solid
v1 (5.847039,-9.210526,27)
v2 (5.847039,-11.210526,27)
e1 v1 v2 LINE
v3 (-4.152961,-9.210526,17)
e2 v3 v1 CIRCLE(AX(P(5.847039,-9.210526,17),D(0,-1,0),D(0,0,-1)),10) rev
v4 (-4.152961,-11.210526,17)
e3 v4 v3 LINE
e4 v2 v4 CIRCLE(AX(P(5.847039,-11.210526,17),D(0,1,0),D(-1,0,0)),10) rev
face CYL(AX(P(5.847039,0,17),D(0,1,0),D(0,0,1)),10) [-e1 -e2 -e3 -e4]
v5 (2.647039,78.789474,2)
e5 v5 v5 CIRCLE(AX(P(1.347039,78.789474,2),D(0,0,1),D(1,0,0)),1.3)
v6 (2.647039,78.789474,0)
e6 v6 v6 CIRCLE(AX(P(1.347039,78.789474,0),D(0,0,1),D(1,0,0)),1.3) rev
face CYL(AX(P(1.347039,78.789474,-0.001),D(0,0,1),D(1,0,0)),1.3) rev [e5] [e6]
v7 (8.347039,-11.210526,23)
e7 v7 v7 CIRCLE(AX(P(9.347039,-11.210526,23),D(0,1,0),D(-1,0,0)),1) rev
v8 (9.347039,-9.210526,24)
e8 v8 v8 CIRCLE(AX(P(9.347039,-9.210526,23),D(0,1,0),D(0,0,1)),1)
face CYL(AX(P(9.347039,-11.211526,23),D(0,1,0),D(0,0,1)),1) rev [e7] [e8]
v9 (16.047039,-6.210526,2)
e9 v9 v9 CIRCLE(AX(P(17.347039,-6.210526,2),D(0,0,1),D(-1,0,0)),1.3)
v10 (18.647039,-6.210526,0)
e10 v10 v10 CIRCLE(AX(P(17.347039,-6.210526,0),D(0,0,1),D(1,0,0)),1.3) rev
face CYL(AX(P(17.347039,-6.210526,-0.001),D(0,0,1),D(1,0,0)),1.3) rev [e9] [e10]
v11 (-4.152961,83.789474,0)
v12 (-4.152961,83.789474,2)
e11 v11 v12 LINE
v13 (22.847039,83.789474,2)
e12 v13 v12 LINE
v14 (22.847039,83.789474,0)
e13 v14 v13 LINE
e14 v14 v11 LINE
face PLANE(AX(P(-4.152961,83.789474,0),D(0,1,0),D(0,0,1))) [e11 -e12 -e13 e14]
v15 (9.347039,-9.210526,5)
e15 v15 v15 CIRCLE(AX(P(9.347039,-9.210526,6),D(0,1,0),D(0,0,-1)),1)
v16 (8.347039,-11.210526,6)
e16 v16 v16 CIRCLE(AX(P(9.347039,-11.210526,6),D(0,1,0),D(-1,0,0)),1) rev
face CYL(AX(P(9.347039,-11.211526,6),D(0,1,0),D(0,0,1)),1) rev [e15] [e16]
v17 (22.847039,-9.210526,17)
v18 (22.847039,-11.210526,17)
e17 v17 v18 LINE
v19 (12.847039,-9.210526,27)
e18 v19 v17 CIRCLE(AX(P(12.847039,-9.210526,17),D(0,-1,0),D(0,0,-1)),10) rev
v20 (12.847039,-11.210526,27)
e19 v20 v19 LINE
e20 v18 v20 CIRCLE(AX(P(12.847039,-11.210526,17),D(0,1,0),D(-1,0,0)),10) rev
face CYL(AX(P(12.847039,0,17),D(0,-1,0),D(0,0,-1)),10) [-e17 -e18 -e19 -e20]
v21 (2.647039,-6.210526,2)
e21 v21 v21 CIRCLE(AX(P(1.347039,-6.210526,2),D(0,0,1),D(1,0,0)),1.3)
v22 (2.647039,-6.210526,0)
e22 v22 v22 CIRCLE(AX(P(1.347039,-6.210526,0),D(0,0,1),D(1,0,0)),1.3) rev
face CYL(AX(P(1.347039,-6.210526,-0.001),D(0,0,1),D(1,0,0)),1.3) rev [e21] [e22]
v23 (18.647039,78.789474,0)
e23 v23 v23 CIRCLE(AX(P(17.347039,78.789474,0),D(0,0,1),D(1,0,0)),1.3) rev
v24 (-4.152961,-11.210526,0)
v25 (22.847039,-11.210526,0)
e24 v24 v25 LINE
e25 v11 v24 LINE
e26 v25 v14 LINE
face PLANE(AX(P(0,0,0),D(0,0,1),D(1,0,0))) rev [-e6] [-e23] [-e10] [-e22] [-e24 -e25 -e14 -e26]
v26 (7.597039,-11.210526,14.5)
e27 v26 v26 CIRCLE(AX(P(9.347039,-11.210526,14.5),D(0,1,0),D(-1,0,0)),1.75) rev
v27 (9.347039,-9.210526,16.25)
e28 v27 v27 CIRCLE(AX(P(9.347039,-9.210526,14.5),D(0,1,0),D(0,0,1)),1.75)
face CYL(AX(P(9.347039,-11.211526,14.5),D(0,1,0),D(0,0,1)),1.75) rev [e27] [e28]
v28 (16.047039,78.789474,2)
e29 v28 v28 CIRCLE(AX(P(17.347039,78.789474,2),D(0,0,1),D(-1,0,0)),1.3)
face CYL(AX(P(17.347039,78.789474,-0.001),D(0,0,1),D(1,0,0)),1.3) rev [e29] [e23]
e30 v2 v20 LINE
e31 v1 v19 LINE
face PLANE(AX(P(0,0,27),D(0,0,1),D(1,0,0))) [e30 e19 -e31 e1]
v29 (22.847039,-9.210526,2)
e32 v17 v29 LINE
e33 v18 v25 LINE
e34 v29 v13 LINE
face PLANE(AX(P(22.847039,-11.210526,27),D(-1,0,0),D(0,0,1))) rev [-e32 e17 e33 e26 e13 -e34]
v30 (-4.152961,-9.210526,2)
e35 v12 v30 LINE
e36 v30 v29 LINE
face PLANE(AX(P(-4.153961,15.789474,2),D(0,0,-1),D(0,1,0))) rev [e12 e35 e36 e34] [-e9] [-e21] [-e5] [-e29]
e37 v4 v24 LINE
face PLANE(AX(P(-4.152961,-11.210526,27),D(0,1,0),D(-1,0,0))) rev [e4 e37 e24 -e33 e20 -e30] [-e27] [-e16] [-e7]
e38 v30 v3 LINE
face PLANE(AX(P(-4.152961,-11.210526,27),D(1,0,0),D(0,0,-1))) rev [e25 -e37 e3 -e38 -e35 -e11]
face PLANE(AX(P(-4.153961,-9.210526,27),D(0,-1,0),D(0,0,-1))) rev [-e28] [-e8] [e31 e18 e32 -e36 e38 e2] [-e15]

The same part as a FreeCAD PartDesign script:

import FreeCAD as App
import Part
import Sketcher
Q = App.Units.Quantity


def edges_at(feature, points):
    """Names of the edges that pass closest to the given points."""
    edges = feature.Shape.Edges
    near = lambda p: min(range(len(edges)), key=lambda i: edges[i].distToShape(Part.Vertex(*p))[0])
    return sorted({f"Edge{near(p) + 1}" for p in points})

doc = App.newDocument("Part")
body = doc.addObject("PartDesign::Body", "Body")

sketch1 = body.newObject("Sketcher::SketchObject", "Sketch")
sketch1.AttachmentSupport = (doc.getObject("XY_Plane"), [""])
sketch1.MapMode = "FlatFace"
sketch1.addGeometry([
    Part.LineSegment(App.Vector(-4, -11, 0), App.Vector(23, -11, 0)),
    Part.LineSegment(App.Vector(23, -11, 0), App.Vector(23, 16, 0)),
    Part.LineSegment(App.Vector(23, 16, 0), App.Vector(-4, 16, 0)),
    Part.LineSegment(App.Vector(-4, 16, 0), App.Vector(-4, -11, 0)),
], False)
sketch1.addConstraint([
    Sketcher.Constraint("Coincident", 0, 2, 1, 1),
    Sketcher.Constraint("Coincident", 1, 2, 2, 1),
    Sketcher.Constraint("Coincident", 2, 2, 3, 1),
    Sketcher.Constraint("Coincident", 3, 2, 0, 1),
    Sketcher.Constraint("Horizontal", 0),
    Sketcher.Constraint("Vertical", 1),
    Sketcher.Constraint("Horizontal", 2),
    Sketcher.Constraint("Vertical", 3),
    Sketcher.Constraint("Equal", 2, 1),
    Sketcher.Constraint("DistanceX", 0, 1, 0, 2, Q("27 mm")),
    Sketcher.Constraint("DistanceX", -1, 1, 0, 2, Q("22.847039 mm")),
    Sketcher.Constraint("DistanceY", 0, 2, -1, 1, Q("11.210526 mm")),
])
pad1 = body.newObject("PartDesign::Pad", "Pad")
pad1.Profile = sketch1
pad1.Length = 27

sketch2 = body.newObject("Sketcher::SketchObject", "Sketch001")
sketch2.AttachmentSupport = (doc.getObject("YZ_Plane"), [""])
sketch2.MapMode = "FlatFace"
sketch2.AttachmentOffset = App.Placement(App.Vector(0, 0, 22.847039), App.Rotation())
sketch2.addGeometry([
    Part.LineSegment(App.Vector(-9, 27, 0), App.Vector(-9, 2, 0)),
    Part.LineSegment(App.Vector(-9, 2, 0), App.Vector(16, 2, 0)),
    Part.LineSegment(App.Vector(16, 2, 0), App.Vector(16, 27, 0)),
    Part.LineSegment(App.Vector(16, 27, 0), App.Vector(-9, 27, 0)),
], False)
sketch2.addConstraint([
    Sketcher.Constraint("Coincident", 0, 2, 1, 1),
    Sketcher.Constraint("Coincident", 1, 2, 2, 1),
    Sketcher.Constraint("Coincident", 2, 2, 3, 1),
    Sketcher.Constraint("Coincident", 3, 2, 0, 1),
    Sketcher.Constraint("Vertical", 0),
    Sketcher.Constraint("Horizontal", 1),
    Sketcher.Constraint("Vertical", 2),
    Sketcher.Constraint("Horizontal", 3),
    Sketcher.Constraint("Equal", 3, 0),
    Sketcher.Constraint("DistanceX", 1, 1, 1, 2, Q("25 mm")),
    Sketcher.Constraint("DistanceY", -1, 1, 0, 2, Q("2 mm")),
    Sketcher.Constraint("DistanceX", 0, 2, -1, 1, Q("9.210526 mm")),
])
pocket1 = body.newObject("PartDesign::Pocket", "Pocket")
pocket1.Profile = sketch2
pocket1.Type = "UpToFirst"

sketch3 = body.newObject("Sketcher::SketchObject", "Sketch002")
sketch3.AttachmentSupport = (doc.getObject("XZ_Plane"), [""])
sketch3.MapMode = "FlatFace"
sketch3.AttachmentOffset = App.Placement(App.Vector(0, 0, 9.210526), App.Rotation())
sketch3.addGeometry(Part.Circle(App.Vector(9.3, 14.5, 0), App.Vector(0, 0, 1), 1.8), False)
sketch3.addConstraint([
    Sketcher.Constraint("Diameter", 0, Q("3.5 mm")),
    Sketcher.Constraint("DistanceY", -1, 1, 0, 3, Q("14.5 mm")),
    Sketcher.Constraint("DistanceX", -1, 1, 0, 3, Q("9.347039 mm")),
])
pocket2 = body.newObject("PartDesign::Pocket", "Pocket001")
pocket2.Profile = sketch3
pocket2.Type = "UpToFirst"
pocket2.Reversed = True

sketch4 = body.newObject("Sketcher::SketchObject", "Sketch003")
sketch4.AttachmentSupport = (doc.getObject("XZ_Plane"), [""])
sketch4.MapMode = "FlatFace"
sketch4.AttachmentOffset = App.Placement(App.Vector(0, 0, 9.210526), App.Rotation())
sketch4.addGeometry(Part.Circle(App.Vector(9.3, 23, 0), App.Vector(0, 0, 1), 1), False)
sketch4.addConstraint([
    Sketcher.Constraint("Diameter", 0, Q("2 mm")),
    Sketcher.Constraint("DistanceY", -1, 1, 0, 3, Q("23 mm")),
    Sketcher.Constraint("DistanceX", -1, 1, 0, 3, Q("9.347039 mm")),
])
pocket3 = body.newObject("PartDesign::Pocket", "Pocket002")
pocket3.Profile = sketch4
pocket3.Type = "UpToFirst"
pocket3.Reversed = True

sketch5 = body.newObject("Sketcher::SketchObject", "Sketch004")
sketch5.AttachmentSupport = (doc.getObject("XZ_Plane"), [""])
sketch5.MapMode = "FlatFace"
sketch5.AttachmentOffset = App.Placement(App.Vector(0, 0, 9.210526), App.Rotation())
sketch5.addGeometry(Part.Circle(App.Vector(9.3, 6, 0), App.Vector(0, 0, 1), 1), False)
sketch5.addConstraint([
    Sketcher.Constraint("Diameter", 0, Q("2 mm")),
    Sketcher.Constraint("DistanceY", -1, 1, 0, 3, Q("6 mm")),
    Sketcher.Constraint("DistanceX", -1, 1, 0, 3, Q("9.347039 mm")),
])
pocket4 = body.newObject("PartDesign::Pocket", "Pocket003")
pocket4.Profile = sketch5
pocket4.Type = "UpToFirst"
pocket4.Reversed = True

sketch6 = body.newObject("Sketcher::SketchObject", "Sketch005")
sketch6.AttachmentSupport = (doc.getObject("XY_Plane"), [""])
sketch6.MapMode = "FlatFace"
sketch6.AttachmentOffset = App.Placement(App.Vector(0, 0, 2), App.Rotation())
sketch6.addGeometry([
    Part.LineSegment(App.Vector(-4, 84, 0), App.Vector(-4, 16, 0)),
    Part.LineSegment(App.Vector(-4, 16, 0), App.Vector(23, 16, 0)),
    Part.LineSegment(App.Vector(23, 16, 0), App.Vector(23, 84, 0)),
    Part.LineSegment(App.Vector(23, 84, 0), App.Vector(-4, 84, 0)),
], False)
sketch6.addConstraint([
    Sketcher.Constraint("Coincident", 0, 2, 1, 1),
    Sketcher.Constraint("Coincident", 1, 2, 2, 1),
    Sketcher.Constraint("Coincident", 2, 2, 3, 1),
    Sketcher.Constraint("Coincident", 3, 2, 0, 1),
    Sketcher.Constraint("Vertical", 0),
    Sketcher.Constraint("Horizontal", 1),
    Sketcher.Constraint("Vertical", 2),
    Sketcher.Constraint("Horizontal", 3),
    Sketcher.Constraint("DistanceX", 1, 1, 1, 2, Q("27 mm")),
    Sketcher.Constraint("DistanceY", 0, 2, 0, 1, Q("68 mm")),
    Sketcher.Constraint("DistanceX", 0, 2, -1, 1, Q("4.152961 mm")),
    Sketcher.Constraint("DistanceY", -1, 1, 0, 2, Q("15.789474 mm")),
])
pad2 = body.newObject("PartDesign::Pad", "Pad001")
pad2.Profile = sketch6
pad2.Length = 2
pad2.Reversed = True

sketch7 = body.newObject("Sketcher::SketchObject", "Sketch006")
sketch7.AttachmentSupport = (doc.getObject("XY_Plane"), [""])
sketch7.MapMode = "FlatFace"
sketch7.AttachmentOffset = App.Placement(App.Vector(0, 0, 2), App.Rotation())
sketch7.addGeometry(Part.Circle(App.Vector(1.3, -6.2, 0), App.Vector(0, 0, 1), 1.3), False)
sketch7.addConstraint([
    Sketcher.Constraint("Diameter", 0, Q("2.6 mm")),
    Sketcher.Constraint("DistanceX", -1, 1, 0, 3, Q("1.347039 mm")),
    Sketcher.Constraint("DistanceY", 0, 3, -1, 1, Q("6.210526 mm")),
])
pocket5 = body.newObject("PartDesign::Pocket", "Pocket004")
pocket5.Profile = sketch7
pocket5.Type = "UpToFirst"

sketch8 = body.newObject("Sketcher::SketchObject", "Sketch007")
sketch8.AttachmentSupport = (doc.getObject("XY_Plane"), [""])
sketch8.MapMode = "FlatFace"
sketch8.AttachmentOffset = App.Placement(App.Vector(0, 0, 2), App.Rotation())
sketch8.addGeometry(Part.Circle(App.Vector(1.3, 78.8, 0), App.Vector(0, 0, 1), 1.3), False)
sketch8.addConstraint([
    Sketcher.Constraint("Diameter", 0, Q("2.6 mm")),
    Sketcher.Constraint("DistanceX", -1, 1, 0, 3, Q("1.347039 mm")),
    Sketcher.Constraint("DistanceY", -1, 1, 0, 3, Q("78.789474 mm")),
])
pocket6 = body.newObject("PartDesign::Pocket", "Pocket005")
pocket6.Profile = sketch8
pocket6.Type = "UpToFirst"

sketch9 = body.newObject("Sketcher::SketchObject", "Sketch008")
sketch9.AttachmentSupport = (doc.getObject("XY_Plane"), [""])
sketch9.MapMode = "FlatFace"
sketch9.AttachmentOffset = App.Placement(App.Vector(0, 0, 2), App.Rotation())
sketch9.addGeometry(Part.Circle(App.Vector(17.3, -6.2, 0), App.Vector(0, 0, 1), 1.3), False)
sketch9.addConstraint([
    Sketcher.Constraint("Diameter", 0, Q("2.6 mm")),
    Sketcher.Constraint("DistanceX", -1, 1, 0, 3, Q("17.347039 mm")),
    Sketcher.Constraint("DistanceY", 0, 3, -1, 1, Q("6.210526 mm")),
])
pocket7 = body.newObject("PartDesign::Pocket", "Pocket006")
pocket7.Profile = sketch9
pocket7.Type = "UpToFirst"

sketch10 = body.newObject("Sketcher::SketchObject", "Sketch009")
sketch10.AttachmentSupport = (doc.getObject("XY_Plane"), [""])
sketch10.MapMode = "FlatFace"
sketch10.AttachmentOffset = App.Placement(App.Vector(0, 0, 2), App.Rotation())
sketch10.addGeometry(Part.Circle(App.Vector(17.3, 78.8, 0), App.Vector(0, 0, 1), 1.3), False)
sketch10.addConstraint([
    Sketcher.Constraint("Diameter", 0, Q("2.6 mm")),
    Sketcher.Constraint("DistanceX", -1, 1, 0, 3, Q("17.347039 mm")),
    Sketcher.Constraint("DistanceY", -1, 1, 0, 3, Q("78.789474 mm")),
])
pocket8 = body.newObject("PartDesign::Pocket", "Pocket007")
pocket8.Profile = sketch10
pocket8.Type = "UpToFirst"
doc.recompute()

fillet = body.newObject("PartDesign::Fillet", "Fillet")
fillet.Base = (pocket8, edges_at(pocket8, [(-4.153, -10.211, 27), (22.847, -10.211, 27)]))
fillet.Radius = 10

doc.recompute()
